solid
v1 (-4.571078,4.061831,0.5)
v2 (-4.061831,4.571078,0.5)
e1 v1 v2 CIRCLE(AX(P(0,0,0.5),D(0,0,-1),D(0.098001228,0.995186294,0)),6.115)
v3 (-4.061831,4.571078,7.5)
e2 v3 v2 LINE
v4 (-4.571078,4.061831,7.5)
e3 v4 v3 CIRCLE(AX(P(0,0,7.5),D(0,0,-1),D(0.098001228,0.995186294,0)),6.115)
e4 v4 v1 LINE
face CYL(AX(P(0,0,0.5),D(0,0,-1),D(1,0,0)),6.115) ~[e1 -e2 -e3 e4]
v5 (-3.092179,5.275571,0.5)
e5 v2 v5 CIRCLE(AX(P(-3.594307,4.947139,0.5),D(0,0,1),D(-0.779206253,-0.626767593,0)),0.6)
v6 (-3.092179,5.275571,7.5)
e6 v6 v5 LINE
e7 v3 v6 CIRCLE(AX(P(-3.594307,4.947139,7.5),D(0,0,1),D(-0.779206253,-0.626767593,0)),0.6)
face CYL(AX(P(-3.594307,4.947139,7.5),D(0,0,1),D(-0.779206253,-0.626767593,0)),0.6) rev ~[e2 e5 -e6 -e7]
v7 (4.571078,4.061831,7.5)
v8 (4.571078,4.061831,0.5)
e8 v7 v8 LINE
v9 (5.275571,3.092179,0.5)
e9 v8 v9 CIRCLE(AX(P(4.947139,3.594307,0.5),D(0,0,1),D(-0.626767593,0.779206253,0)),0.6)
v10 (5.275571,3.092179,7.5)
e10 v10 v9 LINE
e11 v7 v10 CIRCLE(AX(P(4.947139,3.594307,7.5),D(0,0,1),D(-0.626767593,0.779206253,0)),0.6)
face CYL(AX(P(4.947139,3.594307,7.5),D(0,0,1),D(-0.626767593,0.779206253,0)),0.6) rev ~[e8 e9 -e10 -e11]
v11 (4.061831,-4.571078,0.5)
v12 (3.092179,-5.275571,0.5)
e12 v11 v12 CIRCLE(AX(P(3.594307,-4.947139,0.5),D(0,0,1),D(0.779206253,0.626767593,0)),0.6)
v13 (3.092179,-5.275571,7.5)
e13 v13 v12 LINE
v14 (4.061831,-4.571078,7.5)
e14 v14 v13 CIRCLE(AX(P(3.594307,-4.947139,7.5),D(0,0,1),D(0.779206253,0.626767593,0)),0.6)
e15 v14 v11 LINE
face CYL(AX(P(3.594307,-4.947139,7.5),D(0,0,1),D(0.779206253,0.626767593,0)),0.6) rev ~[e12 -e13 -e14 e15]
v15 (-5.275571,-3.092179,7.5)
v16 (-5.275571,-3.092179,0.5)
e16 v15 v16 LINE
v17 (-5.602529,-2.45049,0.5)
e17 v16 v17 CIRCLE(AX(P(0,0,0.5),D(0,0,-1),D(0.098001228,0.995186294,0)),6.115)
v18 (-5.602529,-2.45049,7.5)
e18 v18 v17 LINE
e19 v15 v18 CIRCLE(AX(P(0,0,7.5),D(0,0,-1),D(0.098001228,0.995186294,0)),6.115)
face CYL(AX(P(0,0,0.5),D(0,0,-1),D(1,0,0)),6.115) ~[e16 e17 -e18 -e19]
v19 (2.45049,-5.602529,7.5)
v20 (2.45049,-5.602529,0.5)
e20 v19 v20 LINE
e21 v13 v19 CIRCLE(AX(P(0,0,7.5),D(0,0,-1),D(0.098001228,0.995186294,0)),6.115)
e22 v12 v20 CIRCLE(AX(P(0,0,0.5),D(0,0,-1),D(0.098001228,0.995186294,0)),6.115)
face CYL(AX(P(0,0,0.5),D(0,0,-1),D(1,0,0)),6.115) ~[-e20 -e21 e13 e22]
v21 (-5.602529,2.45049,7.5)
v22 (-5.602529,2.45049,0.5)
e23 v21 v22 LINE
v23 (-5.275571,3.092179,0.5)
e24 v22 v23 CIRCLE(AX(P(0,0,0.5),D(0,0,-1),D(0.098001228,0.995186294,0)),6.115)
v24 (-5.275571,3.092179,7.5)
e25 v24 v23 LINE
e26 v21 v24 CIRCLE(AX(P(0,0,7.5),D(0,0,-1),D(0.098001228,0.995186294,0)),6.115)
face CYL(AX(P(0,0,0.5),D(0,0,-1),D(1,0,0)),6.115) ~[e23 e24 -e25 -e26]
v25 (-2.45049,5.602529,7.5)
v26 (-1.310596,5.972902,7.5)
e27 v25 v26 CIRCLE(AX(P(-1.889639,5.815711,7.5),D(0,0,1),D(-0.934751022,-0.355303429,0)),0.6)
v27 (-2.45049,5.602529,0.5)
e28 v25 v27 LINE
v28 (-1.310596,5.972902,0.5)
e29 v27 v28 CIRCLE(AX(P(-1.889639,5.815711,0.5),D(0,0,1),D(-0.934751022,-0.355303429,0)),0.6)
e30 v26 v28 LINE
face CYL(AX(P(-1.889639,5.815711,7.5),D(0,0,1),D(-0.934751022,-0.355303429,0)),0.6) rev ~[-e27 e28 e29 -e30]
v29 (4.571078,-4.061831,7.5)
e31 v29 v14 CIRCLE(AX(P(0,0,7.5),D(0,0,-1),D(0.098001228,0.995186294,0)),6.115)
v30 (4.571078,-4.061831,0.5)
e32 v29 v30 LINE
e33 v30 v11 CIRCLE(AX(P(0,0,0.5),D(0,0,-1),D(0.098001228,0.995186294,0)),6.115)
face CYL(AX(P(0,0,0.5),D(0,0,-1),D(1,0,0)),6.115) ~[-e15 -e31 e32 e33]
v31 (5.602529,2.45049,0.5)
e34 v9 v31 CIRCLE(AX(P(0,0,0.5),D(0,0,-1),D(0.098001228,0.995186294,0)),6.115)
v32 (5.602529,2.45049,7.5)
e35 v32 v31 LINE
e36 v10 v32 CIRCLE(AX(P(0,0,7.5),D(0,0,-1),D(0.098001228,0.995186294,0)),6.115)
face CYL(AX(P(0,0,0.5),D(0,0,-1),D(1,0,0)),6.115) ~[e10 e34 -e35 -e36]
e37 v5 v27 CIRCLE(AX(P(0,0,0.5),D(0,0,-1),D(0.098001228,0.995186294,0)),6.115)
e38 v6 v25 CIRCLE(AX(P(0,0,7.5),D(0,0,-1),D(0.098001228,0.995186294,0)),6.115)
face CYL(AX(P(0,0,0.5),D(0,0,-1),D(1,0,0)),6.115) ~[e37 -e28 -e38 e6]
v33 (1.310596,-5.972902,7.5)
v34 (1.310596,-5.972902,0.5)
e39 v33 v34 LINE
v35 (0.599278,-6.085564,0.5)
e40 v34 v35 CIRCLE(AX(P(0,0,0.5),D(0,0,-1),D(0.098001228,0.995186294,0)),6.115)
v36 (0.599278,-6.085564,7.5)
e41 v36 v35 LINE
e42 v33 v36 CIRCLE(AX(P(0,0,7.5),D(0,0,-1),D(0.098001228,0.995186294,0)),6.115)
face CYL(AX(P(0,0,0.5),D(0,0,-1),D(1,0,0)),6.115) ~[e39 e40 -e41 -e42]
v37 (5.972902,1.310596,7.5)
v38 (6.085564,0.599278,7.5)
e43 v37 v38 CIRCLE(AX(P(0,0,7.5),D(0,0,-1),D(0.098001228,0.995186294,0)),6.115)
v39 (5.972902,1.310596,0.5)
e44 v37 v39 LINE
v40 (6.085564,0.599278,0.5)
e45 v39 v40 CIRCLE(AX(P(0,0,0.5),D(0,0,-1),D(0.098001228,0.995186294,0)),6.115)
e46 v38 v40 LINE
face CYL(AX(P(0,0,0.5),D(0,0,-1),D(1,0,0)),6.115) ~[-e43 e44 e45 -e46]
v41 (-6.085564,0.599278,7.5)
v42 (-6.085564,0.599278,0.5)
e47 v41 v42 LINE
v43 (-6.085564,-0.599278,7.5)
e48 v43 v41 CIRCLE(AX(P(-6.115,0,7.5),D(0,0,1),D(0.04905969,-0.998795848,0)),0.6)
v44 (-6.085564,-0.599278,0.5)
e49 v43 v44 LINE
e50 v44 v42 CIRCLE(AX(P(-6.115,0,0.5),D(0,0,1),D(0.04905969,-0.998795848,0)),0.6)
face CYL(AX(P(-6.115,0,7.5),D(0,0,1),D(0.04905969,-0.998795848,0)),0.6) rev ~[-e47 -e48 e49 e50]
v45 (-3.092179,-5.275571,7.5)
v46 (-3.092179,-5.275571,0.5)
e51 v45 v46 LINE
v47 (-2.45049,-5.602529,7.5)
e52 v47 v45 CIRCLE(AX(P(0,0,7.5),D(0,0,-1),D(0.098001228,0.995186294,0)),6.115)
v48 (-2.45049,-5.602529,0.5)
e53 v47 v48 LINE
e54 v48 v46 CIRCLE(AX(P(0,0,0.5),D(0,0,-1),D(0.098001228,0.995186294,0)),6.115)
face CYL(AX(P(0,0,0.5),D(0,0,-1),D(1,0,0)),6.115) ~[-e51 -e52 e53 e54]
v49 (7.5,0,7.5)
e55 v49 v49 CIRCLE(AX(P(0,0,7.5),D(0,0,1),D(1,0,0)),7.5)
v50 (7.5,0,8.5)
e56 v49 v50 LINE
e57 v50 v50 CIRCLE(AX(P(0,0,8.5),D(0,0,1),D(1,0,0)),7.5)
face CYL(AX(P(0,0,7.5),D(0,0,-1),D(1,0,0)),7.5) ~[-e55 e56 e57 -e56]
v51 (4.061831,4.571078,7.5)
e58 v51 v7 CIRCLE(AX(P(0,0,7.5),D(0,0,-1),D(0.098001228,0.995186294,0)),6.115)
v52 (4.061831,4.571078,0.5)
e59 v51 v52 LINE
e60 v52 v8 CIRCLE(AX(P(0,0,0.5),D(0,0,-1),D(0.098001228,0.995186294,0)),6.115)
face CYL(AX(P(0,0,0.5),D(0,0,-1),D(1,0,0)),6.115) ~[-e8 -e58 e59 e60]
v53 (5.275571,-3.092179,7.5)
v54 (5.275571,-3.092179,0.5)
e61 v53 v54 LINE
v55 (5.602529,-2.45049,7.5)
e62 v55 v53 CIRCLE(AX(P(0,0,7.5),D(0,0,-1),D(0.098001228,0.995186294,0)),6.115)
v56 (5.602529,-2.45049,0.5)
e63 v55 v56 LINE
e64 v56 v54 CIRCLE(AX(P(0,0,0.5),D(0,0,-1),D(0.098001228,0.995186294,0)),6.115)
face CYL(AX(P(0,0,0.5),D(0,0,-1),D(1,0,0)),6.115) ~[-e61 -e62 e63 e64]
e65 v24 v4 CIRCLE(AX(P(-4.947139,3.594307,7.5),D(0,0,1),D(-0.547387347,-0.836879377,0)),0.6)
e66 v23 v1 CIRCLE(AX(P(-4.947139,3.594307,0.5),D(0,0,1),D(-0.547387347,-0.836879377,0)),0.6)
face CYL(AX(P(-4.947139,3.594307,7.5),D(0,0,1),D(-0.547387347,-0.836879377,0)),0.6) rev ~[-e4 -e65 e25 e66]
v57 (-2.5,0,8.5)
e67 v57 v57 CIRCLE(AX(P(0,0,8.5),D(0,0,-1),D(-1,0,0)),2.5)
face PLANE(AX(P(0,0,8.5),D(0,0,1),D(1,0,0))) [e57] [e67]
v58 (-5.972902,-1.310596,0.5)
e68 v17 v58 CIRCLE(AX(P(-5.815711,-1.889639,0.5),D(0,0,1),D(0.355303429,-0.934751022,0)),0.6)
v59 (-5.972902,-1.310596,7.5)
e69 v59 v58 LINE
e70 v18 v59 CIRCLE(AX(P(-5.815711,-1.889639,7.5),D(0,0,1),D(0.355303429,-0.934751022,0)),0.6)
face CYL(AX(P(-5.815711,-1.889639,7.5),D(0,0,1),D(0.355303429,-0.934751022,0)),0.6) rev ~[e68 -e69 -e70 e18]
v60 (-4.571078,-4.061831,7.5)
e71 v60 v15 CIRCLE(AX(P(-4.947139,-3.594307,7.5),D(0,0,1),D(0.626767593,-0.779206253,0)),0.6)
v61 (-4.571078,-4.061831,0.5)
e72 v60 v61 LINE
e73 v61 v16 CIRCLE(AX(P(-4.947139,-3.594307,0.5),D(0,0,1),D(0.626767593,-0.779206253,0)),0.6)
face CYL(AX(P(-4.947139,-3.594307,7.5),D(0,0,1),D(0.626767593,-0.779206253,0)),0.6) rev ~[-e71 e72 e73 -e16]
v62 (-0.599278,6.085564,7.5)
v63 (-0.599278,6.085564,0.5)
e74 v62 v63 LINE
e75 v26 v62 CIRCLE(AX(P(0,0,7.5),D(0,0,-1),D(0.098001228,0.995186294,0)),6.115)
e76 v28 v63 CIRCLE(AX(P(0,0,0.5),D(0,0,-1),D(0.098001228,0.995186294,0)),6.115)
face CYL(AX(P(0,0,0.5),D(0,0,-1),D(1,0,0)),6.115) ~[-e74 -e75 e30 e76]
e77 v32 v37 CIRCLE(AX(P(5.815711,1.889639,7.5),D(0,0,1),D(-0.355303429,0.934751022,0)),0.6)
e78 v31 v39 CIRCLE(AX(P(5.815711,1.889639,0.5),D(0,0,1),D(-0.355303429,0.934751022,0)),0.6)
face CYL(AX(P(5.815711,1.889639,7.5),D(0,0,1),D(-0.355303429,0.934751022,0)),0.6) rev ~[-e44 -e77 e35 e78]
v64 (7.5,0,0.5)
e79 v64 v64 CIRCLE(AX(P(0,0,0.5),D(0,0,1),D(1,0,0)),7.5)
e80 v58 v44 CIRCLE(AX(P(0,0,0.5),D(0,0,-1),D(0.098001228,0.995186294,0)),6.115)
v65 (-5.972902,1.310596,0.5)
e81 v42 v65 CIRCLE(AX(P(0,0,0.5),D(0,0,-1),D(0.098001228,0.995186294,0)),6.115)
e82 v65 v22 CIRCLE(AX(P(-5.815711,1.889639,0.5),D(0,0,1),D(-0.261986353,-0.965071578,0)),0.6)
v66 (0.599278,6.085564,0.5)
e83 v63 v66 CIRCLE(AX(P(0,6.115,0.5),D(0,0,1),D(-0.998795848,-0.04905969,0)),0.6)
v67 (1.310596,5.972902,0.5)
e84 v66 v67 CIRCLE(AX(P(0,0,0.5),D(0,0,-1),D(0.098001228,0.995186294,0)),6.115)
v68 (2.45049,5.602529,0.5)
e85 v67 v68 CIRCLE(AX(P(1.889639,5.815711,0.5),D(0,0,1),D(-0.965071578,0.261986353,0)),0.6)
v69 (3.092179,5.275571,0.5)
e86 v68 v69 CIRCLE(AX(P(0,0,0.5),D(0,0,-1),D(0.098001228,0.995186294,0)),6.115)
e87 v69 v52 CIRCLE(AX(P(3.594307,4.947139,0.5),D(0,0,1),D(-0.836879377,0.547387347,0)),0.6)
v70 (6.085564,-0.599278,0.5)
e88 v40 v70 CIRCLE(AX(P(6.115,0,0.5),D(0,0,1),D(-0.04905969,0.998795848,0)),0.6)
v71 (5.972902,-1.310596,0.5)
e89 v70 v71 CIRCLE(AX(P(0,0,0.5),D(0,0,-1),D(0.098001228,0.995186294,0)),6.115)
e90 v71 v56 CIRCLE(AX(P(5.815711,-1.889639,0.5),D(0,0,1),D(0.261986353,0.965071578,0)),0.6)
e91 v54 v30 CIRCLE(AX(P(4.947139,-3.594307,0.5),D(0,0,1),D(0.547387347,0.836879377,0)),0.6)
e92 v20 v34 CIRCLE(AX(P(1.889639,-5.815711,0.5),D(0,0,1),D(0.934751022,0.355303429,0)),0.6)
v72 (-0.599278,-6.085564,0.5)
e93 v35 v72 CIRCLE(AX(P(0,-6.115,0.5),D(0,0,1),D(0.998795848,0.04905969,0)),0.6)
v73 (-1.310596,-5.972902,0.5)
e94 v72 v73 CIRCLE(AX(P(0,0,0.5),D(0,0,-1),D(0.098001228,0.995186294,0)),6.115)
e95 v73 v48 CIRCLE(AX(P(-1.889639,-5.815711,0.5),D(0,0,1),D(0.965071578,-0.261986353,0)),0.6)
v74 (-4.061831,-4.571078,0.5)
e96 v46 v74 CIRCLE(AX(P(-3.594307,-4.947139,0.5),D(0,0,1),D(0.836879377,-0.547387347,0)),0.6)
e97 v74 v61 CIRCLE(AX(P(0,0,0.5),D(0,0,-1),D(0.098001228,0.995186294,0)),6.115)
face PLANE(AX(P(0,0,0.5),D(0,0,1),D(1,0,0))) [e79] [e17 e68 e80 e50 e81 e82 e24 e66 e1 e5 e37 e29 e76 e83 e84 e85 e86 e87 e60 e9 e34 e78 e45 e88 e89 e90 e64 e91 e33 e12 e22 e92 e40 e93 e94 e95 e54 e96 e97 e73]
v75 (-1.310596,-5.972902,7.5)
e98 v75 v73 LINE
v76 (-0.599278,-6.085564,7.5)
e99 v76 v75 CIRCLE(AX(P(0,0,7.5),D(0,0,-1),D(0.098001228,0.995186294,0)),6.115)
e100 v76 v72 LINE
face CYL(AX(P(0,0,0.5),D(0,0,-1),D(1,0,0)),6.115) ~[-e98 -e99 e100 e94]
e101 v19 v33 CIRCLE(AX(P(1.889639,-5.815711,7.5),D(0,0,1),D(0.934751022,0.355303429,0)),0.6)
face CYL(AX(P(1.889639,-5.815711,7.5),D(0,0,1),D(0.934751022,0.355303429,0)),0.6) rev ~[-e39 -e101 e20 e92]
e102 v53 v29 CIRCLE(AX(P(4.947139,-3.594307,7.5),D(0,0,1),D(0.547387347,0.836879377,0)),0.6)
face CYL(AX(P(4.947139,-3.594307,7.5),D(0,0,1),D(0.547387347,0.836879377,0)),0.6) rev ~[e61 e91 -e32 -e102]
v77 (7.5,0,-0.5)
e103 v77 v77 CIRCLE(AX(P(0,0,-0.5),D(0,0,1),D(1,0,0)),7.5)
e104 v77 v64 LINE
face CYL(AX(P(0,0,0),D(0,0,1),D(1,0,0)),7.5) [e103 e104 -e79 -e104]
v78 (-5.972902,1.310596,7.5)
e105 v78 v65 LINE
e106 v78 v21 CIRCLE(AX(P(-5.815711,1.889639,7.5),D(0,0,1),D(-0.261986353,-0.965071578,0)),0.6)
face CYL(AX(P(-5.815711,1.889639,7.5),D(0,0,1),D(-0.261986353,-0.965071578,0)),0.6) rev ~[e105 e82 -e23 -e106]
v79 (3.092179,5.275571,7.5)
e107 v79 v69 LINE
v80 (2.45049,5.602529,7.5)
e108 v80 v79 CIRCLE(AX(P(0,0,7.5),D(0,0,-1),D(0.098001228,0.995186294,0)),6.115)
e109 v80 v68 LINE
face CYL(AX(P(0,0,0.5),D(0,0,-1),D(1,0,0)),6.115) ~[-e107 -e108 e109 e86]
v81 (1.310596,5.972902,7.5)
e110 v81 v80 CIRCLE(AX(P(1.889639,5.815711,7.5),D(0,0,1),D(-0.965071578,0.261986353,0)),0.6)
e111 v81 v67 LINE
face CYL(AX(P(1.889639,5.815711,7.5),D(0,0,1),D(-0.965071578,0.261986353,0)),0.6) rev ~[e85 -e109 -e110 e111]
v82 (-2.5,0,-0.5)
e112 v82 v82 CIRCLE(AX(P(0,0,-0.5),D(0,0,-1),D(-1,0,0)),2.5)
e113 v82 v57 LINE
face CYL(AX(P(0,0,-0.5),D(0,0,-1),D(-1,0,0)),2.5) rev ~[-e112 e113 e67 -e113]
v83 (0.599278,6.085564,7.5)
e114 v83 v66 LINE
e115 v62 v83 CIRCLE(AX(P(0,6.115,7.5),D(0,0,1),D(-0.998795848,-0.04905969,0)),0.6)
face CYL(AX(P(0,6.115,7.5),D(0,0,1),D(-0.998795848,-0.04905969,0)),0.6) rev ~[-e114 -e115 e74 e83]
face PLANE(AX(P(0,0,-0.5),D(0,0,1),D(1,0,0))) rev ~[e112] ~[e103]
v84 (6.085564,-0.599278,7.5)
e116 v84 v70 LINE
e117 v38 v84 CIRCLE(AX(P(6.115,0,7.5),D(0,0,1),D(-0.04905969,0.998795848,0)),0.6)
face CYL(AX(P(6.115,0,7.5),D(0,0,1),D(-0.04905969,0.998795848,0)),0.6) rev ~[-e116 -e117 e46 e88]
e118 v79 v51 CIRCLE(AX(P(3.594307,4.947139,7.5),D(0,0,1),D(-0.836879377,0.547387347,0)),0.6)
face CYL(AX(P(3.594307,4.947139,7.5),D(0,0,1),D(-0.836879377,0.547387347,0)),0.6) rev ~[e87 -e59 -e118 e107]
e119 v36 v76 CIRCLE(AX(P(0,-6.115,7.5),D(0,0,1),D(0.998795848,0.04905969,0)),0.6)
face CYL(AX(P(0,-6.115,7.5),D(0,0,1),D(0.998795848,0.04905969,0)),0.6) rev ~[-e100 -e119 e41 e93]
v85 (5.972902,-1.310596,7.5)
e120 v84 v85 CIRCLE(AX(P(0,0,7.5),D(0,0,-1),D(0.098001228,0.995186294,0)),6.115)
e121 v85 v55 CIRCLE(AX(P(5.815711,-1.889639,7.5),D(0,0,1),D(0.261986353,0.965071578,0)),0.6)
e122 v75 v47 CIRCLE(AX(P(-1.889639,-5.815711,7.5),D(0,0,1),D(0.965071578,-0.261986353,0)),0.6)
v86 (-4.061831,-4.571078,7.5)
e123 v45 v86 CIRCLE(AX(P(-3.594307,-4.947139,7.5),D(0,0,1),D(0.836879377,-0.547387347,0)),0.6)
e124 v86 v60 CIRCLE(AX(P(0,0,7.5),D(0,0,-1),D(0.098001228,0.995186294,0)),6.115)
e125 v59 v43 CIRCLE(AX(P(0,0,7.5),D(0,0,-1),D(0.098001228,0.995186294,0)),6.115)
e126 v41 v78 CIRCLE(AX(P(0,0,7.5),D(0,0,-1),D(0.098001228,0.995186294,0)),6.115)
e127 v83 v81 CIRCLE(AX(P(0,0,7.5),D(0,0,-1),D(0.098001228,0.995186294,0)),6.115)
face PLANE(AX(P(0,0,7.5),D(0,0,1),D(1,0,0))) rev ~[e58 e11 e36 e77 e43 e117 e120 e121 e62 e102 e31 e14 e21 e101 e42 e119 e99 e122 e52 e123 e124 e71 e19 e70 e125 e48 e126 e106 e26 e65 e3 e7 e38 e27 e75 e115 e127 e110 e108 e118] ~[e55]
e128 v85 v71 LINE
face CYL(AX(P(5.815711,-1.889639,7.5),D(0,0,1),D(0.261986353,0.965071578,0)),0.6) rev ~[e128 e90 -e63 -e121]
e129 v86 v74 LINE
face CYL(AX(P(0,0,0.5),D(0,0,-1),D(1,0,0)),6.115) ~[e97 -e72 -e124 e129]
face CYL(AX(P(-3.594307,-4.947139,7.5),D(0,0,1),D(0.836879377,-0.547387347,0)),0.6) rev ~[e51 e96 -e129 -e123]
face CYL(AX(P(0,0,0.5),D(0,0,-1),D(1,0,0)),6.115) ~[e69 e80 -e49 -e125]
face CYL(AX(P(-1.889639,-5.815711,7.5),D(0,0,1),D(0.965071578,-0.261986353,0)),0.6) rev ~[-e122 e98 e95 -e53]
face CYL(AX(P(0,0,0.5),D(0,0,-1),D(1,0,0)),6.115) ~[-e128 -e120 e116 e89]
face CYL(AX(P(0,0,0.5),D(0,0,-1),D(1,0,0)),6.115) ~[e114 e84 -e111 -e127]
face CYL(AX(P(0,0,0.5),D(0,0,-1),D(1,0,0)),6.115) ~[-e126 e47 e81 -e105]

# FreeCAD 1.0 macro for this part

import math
import FreeCAD as App
import Part
import Sketcher
from FreeCAD import Vector
Q = App.Units.Quantity

doc = App.newDocument("Part")
params = doc.addObject("Spreadsheet::Sheet", "Params")
for row, (alias, value) in enumerate([
    ("sketch1_diameter", "15 mm"),
    ("pad1_length", "1 mm"),
    ("sketch2_diameter", "12.23 mm"),
    ("pad2_length", "7 mm"),
    ("sketch3_radius", "0.6 mm"),
    ("pocket1_length", "7 mm"),
    ("sketch4_diameter", "15 mm"),
    ("pad3_length", "1 mm"),
    ("sketch5_diameter", "5 mm"),
], start=1):
    params.set(f"A{row}", alias)
    params.set(f"B{row}", "=" + value)
    params.setAlias(f"B{row}", alias)

body = doc.addObject("PartDesign::Body", "Body")

sketch1 = body.newObject("Sketcher::SketchObject", "Sketch")
sketch1.AttachmentSupport = (doc.getObject("XY_Plane"), [""])
sketch1.MapMode = "FlatFace"
sketch1.addGeometry(Part.Circle(Vector(0, 0, 0), Vector(0, 0, 1), 8), False)
sketch1.addConstraint(Sketcher.Constraint("Coincident", 0, 3, -1, 1))
sketch1.addConstraint(Sketcher.Constraint("Diameter", 0, Q("15 mm")))
sketch1.setExpression("Constraints[1]", "Params.sketch1_diameter")
pad1 = body.newObject("PartDesign::Pad", "Pad")
pad1.Profile = sketch1
pad1.setExpression("Length", "Params.pad1_length")
pad1.Midplane = True

sketch2 = body.newObject("Sketcher::SketchObject", "Sketch001")
sketch2.AttachmentSupport = (doc.getObject("XY_Plane"), [""])
sketch2.MapMode = "FlatFace"
sketch2.AttachmentOffset = App.Placement(Vector(0, 0, 0.5), App.Rotation())
sketch2.addGeometry(Part.Circle(Vector(0, 0, 0), Vector(0, 0, 1), 6), False)
sketch2.addConstraint(Sketcher.Constraint("Coincident", 0, 3, -1, 1))
sketch2.addConstraint(Sketcher.Constraint("Diameter", 0, Q("12.23 mm")))
sketch2.setExpression("Constraints[1]", "Params.sketch2_diameter")
pad2 = body.newObject("PartDesign::Pad", "Pad001")
pad2.Profile = sketch2
pad2.setExpression("Length", "Params.pad2_length")

sketch3 = body.newObject("Sketcher::SketchObject", "Sketch002")
sketch3.AttachmentSupport = (doc.getObject("XY_Plane"), [""])
sketch3.MapMode = "FlatFace"
sketch3.AttachmentOffset = App.Placement(Vector(0, 0, 7.5), App.Rotation())
sketch3.addGeometry(Part.ArcOfCircle(Part.Circle(Vector(0, 6.1, 0), Vector(0, 0, 1), 0.6), math.radians(-177), math.radians(-3)), False)
sketch3.addGeometry(Part.ArcOfCircle(Part.Circle(Vector(0, 0, 0), Vector(0, 0, 1), 6.1), math.radians(84.38), math.radians(95.62)), False)
sketch3.addConstraint(Sketcher.Constraint("Coincident", 0, 1, 1, 2))
sketch3.addConstraint(Sketcher.Constraint("Coincident", 1, 1, 0, 2))
sketch3.addConstraint(Sketcher.Constraint("Coincident", 1, 3, -1, 1))
sketch3.addConstraint(Sketcher.Constraint("PointOnObject", 0, 3, -2))
sketch3.addConstraint(Sketcher.Constraint("Radius", 0, Q("0.6 mm")))
sketch3.addConstraint(Sketcher.Constraint("Radius", 1, Q("6.115 mm")))
sketch3.addConstraint(Sketcher.Constraint("DistanceY", -1, 1, 0, 3, Q("6.115 mm")))
sketch3.setExpression("Constraints[4]", "Params.sketch3_radius")
pocket1 = body.newObject("PartDesign::Pocket", "Pocket")
pocket1.Profile = sketch3
pocket1.setExpression("Length", "Params.pocket1_length")

sketch4 = body.newObject("Sketcher::SketchObject", "Sketch003")
sketch4.AttachmentSupport = (doc.getObject("XY_Plane"), [""])
sketch4.MapMode = "FlatFace"
sketch4.AttachmentOffset = App.Placement(Vector(0, 0, 7.5), App.Rotation())
sketch4.addGeometry(Part.Circle(Vector(0, 0, 0), Vector(0, 0, 1), 8), False)
sketch4.addConstraint(Sketcher.Constraint("Coincident", 0, 3, -1, 1))
sketch4.addConstraint(Sketcher.Constraint("Diameter", 0, Q("15 mm")))
sketch4.setExpression("Constraints[1]", "Params.sketch4_diameter")
pad3 = body.newObject("PartDesign::Pad", "Pad002")
pad3.Profile = sketch4
pad3.setExpression("Length", "Params.pad3_length")

sketch5 = body.newObject("Sketcher::SketchObject", "Sketch004")
sketch5.AttachmentSupport = (doc.getObject("XY_Plane"), [""])
sketch5.MapMode = "FlatFace"
sketch5.AttachmentOffset = App.Placement(Vector(0, 0, -0.5), App.Rotation())
sketch5.addGeometry(Part.Circle(Vector(0, 0, 0), Vector(0, 0, 1), 2.5), False)
sketch5.addConstraint(Sketcher.Constraint("Coincident", 0, 3, -1, 1))
sketch5.addConstraint(Sketcher.Constraint("Diameter", 0, Q("5 mm")))
sketch5.setExpression("Constraints[1]", "Params.sketch5_diameter")
pocket2 = body.newObject("PartDesign::Pocket", "Pocket001")
pocket2.Profile = sketch5
pocket2.Type = "ThroughAll"
pocket2.Reversed = True
doc.recompute()

polarpattern = body.newObject("PartDesign::PolarPattern", "PolarPattern")
polarpattern.Originals = [pocket1]
polarpattern.Axis = (doc.getObject("Z_Axis"), [""])
polarpattern.Angle = 360
polarpattern.Occurrences = 20
body.Tip = polarpattern

doc.recompute()
